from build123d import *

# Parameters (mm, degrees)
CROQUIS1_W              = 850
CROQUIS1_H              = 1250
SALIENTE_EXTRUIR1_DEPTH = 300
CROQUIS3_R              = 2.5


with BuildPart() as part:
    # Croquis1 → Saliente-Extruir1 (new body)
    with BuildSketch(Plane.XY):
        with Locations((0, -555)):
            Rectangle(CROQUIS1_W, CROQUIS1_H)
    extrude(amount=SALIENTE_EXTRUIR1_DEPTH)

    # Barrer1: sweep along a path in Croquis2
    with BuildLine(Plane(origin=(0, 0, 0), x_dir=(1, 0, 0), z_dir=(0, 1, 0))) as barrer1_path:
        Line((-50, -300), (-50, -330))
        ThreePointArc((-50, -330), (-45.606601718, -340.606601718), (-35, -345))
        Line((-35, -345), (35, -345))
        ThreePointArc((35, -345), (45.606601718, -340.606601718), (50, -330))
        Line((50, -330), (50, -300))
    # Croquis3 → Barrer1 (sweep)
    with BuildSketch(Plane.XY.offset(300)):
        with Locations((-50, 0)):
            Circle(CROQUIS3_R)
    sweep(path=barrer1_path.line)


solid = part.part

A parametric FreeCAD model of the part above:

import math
import FreeCAD as App
import Part
import Sketcher

V = App.Vector


def add_polygon(sketch, points):
    """Adds a closed chain of lines whose ends are joined by coincident constraints."""
    first, n = sketch.GeometryCount, len(points)
    for a, b in zip(points, points[1:] + points[:1]):
        sketch.addGeometry(Part.LineSegment(App.Vector(*a, 0), App.Vector(*b, 0)), False)
    for i in range(n):
        sketch.addConstraint(Sketcher.Constraint("Coincident", first + i, 2, first + (i + 1) % n, 1))

doc = App.newDocument("Part")
body = doc.addObject("PartDesign::Body", "Body")

# Sketch on XY plane
sketch1 = body.newObject("Sketcher::SketchObject", "Sketch")
sketch1.AttachmentSupport = (doc.getObject("XY_Plane"), [""])
sketch1.MapMode = "FlatFace"
add_polygon(sketch1, [(-425, 70), (-425, -1180), (425, -1180), (425, 70)])  # lines 0-3
sketch1.addConstraint(Sketcher.Constraint("Vertical", 0))
sketch1.addConstraint(Sketcher.Constraint("Horizontal", 1))
sketch1.addConstraint(Sketcher.Constraint("Vertical", 2))
sketch1.addConstraint(Sketcher.Constraint("Horizontal", 3))
sketch1.addConstraint(Sketcher.Constraint("DistanceX", 1, 1, 1, 2, 850.0))
sketch1.addConstraint(Sketcher.Constraint("DistanceY", 0, 2, 0, 1, 1250.0))
sketch1.addConstraint(Sketcher.Constraint("DistanceX", 0, 2, -1, 1, 425.0))
sketch1.addConstraint(Sketcher.Constraint("DistanceY", 0, 2, -1, 1, 1180.0))
pad1 = body.newObject("PartDesign::Pad", "Pad")
pad1.Profile = sketch1
pad1.Length = 300

# Sketch on XY plane
sketch2 = body.newObject("Sketcher::SketchObject", "Sketch001")
sketch2.AttachmentSupport = (doc.getObject("XY_Plane"), [""])
sketch2.MapMode = "FlatFace"
sketch2.AttachmentOffset = App.Placement(V(0, 0, 300), App.Rotation())
sketch2.addGeometry(Part.Circle(V(-50, 0, 0), V(0, 0, 1), 2.5), False)
sketch2.addConstraint(Sketcher.Constraint("PointOnObject", 0, 3, -1))
sketch2.addConstraint(Sketcher.Constraint("Diameter", 0, 5.0))
sketch2.addConstraint(Sketcher.Constraint("DistanceX", 0, 3, -1, 1, 50.0))

# Sketch on XZ plane
sketch3 = body.newObject("Sketcher::SketchObject", "Sketch002")
sketch3.AttachmentSupport = (doc.getObject("XZ_Plane"), [""])
sketch3.MapMode = "FlatFace"
sketch3.addGeometry(Part.LineSegment(V(-50, 300, 0), V(-50, 330, 0)), False)
sketch3.addGeometry(Part.ArcOfCircle(Part.Circle(V(-35, 330, 0), V(0, 0, 1), 15), math.radians(90), math.radians(180)), False)
sketch3.addGeometry(Part.LineSegment(V(-35, 345, 0), V(35, 345, 0)), False)
sketch3.addGeometry(Part.ArcOfCircle(Part.Circle(V(35, 330, 0), V(0, 0, 1), 15), math.radians(0), math.radians(90)), False)
sketch3.addGeometry(Part.LineSegment(V(50, 330, 0), V(50, 300, 0)), False)
sketch3.addConstraint(Sketcher.Constraint("Tangent", 0, 2, 1, 2))
sketch3.addConstraint(Sketcher.Constraint("Tangent", 1, 1, 2, 1))
sketch3.addConstraint(Sketcher.Constraint("Tangent", 2, 2, 3, 2))
sketch3.addConstraint(Sketcher.Constraint("Tangent", 3, 1, 4, 1))
sketch3.addConstraint(Sketcher.Constraint("Vertical", 0))
sketch3.addConstraint(Sketcher.Constraint("Horizontal", 2))
sketch3.addConstraint(Sketcher.Constraint("Vertical", 4))
sketch3.addConstraint(Sketcher.Constraint("Equal", 1, 3))
sketch3.addConstraint(Sketcher.Constraint("Symmetric", 0, 1, 4, 2, -2))
sketch3.addConstraint(Sketcher.Constraint("Radius", 1, 15.0))
sketch3.addConstraint(Sketcher.Constraint("DistanceX", 2, 1, 2, 2, 70.0))
sketch3.addConstraint(Sketcher.Constraint("DistanceY", 0, 1, 0, 2, 30.0))
sketch3.addConstraint(Sketcher.Constraint("DistanceY", -1, 1, 1, 3, 330.0))
doc.recompute()

additivepipe = body.newObject("PartDesign::AdditivePipe", "AdditivePipe")
additivepipe.Profile = sketch2
additivepipe.Spine = (sketch3, ["Edge1", "Edge2", "Edge3", "Edge4", "Edge5"])

doc.recompute()
